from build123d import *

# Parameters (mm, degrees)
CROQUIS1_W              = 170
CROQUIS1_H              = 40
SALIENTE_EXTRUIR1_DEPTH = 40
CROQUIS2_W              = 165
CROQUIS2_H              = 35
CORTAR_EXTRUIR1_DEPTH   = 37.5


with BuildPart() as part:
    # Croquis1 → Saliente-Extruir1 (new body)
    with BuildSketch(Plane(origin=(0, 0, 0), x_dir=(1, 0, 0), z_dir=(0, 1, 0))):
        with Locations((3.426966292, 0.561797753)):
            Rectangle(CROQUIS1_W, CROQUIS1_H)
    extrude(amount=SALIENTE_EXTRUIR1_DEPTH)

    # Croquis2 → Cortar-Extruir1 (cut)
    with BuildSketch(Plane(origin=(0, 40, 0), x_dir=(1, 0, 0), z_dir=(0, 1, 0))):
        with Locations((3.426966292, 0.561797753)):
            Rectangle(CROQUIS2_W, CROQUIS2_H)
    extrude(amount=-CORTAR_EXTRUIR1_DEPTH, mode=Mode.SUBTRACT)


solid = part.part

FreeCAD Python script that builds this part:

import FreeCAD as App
import Part
import Sketcher
Q = App.Units.Quantity

doc = App.newDocument("Part")
body = doc.addObject("PartDesign::Body", "Body")

# Sketch on XZ plane
sketch1 = doc.addObject("Sketcher::SketchObject", "Sketch")
body.addObject(sketch1)
sketch1.AttachmentSupport = (doc.XZ_Plane, [""])
sketch1.MapMode = "FlatFace"
sketch1.addGeometry(Part.LineSegment(App.Vector(-81.573034, -20.561798, 0), App.Vector(-81.573034, 19.438202, 0)), False)
sketch1.addGeometry(Part.LineSegment(App.Vector(-81.573034, 19.438202, 0), App.Vector(88.426966, 19.438202, 0)), False)
sketch1.addGeometry(Part.LineSegment(App.Vector(88.426966, 19.438202, 0), App.Vector(88.426966, -20.561798, 0)), False)
sketch1.addGeometry(Part.LineSegment(App.Vector(88.426966, -20.561798, 0), App.Vector(-81.573034, -20.561798, 0)), False)
sketch1.addConstraint(Sketcher.Constraint("Coincident", 0, 2, 1, 1))
sketch1.addConstraint(Sketcher.Constraint("Coincident", 1, 2, 2, 1))
sketch1.addConstraint(Sketcher.Constraint("Coincident", 2, 2, 3, 1))
sketch1.addConstraint(Sketcher.Constraint("Coincident", 3, 2, 0, 1))
sketch1.addConstraint(Sketcher.Constraint("Vertical", 0))
sketch1.addConstraint(Sketcher.Constraint("Horizontal", 1))
sketch1.addConstraint(Sketcher.Constraint("Vertical", 2))
sketch1.addConstraint(Sketcher.Constraint("Horizontal", 3))
sketch1.addConstraint(Sketcher.Constraint("DistanceX", 1, 1, 1, 2, Q("170 mm")))
sketch1.addConstraint(Sketcher.Constraint("DistanceY", 0, 1, 0, 2, Q("40 mm")))
sketch1.addConstraint(Sketcher.Constraint("DistanceX", 0, 2, -1, 1, Q("81.573034 mm")))
sketch1.addConstraint(Sketcher.Constraint("DistanceY", -1, 1, 0, 2, Q("19.438202 mm")))
pad1 = doc.addObject("PartDesign::Pad", "Pad")
body.addObject(pad1)
pad1.Profile = sketch1
pad1.Length = 40
pad1.Reversed = True

# Sketch on XZ plane
sketch2 = doc.addObject("Sketcher::SketchObject", "Sketch001")
body.addObject(sketch2)
sketch2.AttachmentSupport = (doc.XZ_Plane, [""])
sketch2.MapMode = "FlatFace"
sketch2.AttachmentOffset = App.Placement(App.Vector(0, 0, -40), App.Rotation())
sketch2.addGeometry(Part.LineSegment(App.Vector(-79.073034, -18.061798, 0), App.Vector(-79.073034, 16.938202, 0)), False)
sketch2.addGeometry(Part.LineSegment(App.Vector(-79.073034, 16.938202, 0), App.Vector(85.926966, 16.938202, 0)), False)
sketch2.addGeometry(Part.LineSegment(App.Vector(85.926966, 16.938202, 0), App.Vector(85.926966, -18.061798, 0)), False)
sketch2.addGeometry(Part.LineSegment(App.Vector(85.926966, -18.061798, 0), App.Vector(-79.073034, -18.061798, 0)), False)
sketch2.addConstraint(Sketcher.Constraint("Coincident", 0, 2, 1, 1))
sketch2.addConstraint(Sketcher.Constraint("Coincident", 1, 2, 2, 1))
sketch2.addConstraint(Sketcher.Constraint("Coincident", 2, 2, 3, 1))
sketch2.addConstraint(Sketcher.Constraint("Coincident", 3, 2, 0, 1))
sketch2.addConstraint(Sketcher.Constraint("Vertical", 0))
sketch2.addConstraint(Sketcher.Constraint("Horizontal", 1))
sketch2.addConstraint(Sketcher.Constraint("Vertical", 2))
sketch2.addConstraint(Sketcher.Constraint("Horizontal", 3))
sketch2.addConstraint(Sketcher.Constraint("DistanceX", 1, 1, 1, 2, Q("165 mm")))
sketch2.addConstraint(Sketcher.Constraint("DistanceY", 0, 1, 0, 2, Q("35 mm")))
sketch2.addConstraint(Sketcher.Constraint("DistanceX", 0, 2, -1, 1, Q("79.073034 mm")))
sketch2.addConstraint(Sketcher.Constraint("DistanceY", -1, 1, 0, 2, Q("16.938202 mm")))
pocket1 = doc.addObject("PartDesign::Pocket", "Pocket")
body.addObject(pocket1)
pocket1.Profile = sketch2
pocket1.Length = 37.5
pocket1.Reversed = True

doc.recompute()
